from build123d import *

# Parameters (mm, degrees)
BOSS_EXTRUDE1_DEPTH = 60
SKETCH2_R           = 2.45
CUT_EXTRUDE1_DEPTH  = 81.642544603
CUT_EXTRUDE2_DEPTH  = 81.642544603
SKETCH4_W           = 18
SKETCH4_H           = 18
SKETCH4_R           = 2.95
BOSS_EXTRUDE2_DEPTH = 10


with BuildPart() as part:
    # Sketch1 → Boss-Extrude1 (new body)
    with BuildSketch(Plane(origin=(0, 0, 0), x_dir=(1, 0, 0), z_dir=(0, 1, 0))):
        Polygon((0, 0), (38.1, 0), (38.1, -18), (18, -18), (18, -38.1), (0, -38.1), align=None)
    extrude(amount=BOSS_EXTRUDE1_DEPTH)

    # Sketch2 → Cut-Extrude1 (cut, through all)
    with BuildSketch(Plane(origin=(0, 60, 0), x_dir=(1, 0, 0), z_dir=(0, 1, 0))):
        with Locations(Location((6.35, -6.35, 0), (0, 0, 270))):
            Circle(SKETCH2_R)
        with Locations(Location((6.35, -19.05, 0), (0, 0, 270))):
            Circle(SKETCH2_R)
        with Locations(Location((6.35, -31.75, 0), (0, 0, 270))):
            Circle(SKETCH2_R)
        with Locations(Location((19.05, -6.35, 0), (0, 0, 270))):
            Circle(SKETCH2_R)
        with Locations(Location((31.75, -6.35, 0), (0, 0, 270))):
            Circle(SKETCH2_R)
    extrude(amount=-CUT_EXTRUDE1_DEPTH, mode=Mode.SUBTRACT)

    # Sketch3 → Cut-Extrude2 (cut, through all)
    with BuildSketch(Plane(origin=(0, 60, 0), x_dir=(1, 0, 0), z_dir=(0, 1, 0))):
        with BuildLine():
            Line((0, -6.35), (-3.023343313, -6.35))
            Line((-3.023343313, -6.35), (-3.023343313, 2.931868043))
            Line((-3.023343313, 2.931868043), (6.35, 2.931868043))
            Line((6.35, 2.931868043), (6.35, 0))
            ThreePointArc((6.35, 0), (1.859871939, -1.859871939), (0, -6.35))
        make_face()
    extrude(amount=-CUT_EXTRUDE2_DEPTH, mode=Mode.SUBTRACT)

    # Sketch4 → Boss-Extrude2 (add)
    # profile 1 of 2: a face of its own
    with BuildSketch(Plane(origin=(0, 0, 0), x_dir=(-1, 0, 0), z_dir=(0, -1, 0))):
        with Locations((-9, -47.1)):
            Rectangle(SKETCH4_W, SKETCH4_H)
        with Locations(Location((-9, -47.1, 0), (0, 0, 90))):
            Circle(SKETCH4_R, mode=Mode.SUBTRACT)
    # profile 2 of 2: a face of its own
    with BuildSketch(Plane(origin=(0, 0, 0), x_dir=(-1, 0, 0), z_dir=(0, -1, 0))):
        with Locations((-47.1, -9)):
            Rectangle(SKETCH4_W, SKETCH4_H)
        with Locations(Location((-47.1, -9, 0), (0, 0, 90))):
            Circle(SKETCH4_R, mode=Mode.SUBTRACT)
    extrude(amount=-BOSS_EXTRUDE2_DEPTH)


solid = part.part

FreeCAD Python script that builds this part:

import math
import FreeCAD as App
import Part
import Sketcher
Q = App.Units.Quantity


def add_polygon(sketch, points):
    """Adds a closed chain of lines whose ends are joined by coincident constraints."""
    first, n = sketch.GeometryCount, len(points)
    for a, b in zip(points, points[1:] + points[:1]):
        sketch.addGeometry(Part.LineSegment(App.Vector(*a, 0), App.Vector(*b, 0)), False)
    for i in range(n):
        sketch.addConstraint(Sketcher.Constraint("Coincident", first + i, 2, first + (i + 1) % n, 1))

doc = App.newDocument("Part")
body = doc.addObject("PartDesign::Body", "Body")

# Sketch on XZ plane
sketch1 = body.newObject("Sketcher::SketchObject", "Sketch")
sketch1.AttachmentSupport = (doc.getObject("XZ_Plane"), [""])
sketch1.MapMode = "FlatFace"
add_polygon(sketch1, [(38.1, 0), (0, 0), (0, 38.1), (18, 38.1), (18, 18), (38.1, 18)])  # lines 0-5
sketch1.addConstraint([
    Sketcher.Constraint("Horizontal", 0),
    Sketcher.Constraint("Vertical", 1),
    Sketcher.Constraint("Horizontal", 2),
    Sketcher.Constraint("Vertical", 3),
    Sketcher.Constraint("Horizontal", 4),
    Sketcher.Constraint("Vertical", 5),
    Sketcher.Constraint("Coincident", 0, 2, -1, 1),
    Sketcher.Constraint("Equal", 0, 1),
    Sketcher.Constraint("Equal", 4, 3),
    Sketcher.Constraint("DistanceX", 2, 1, 2, 2, Q("18 mm")),
    Sketcher.Constraint("DistanceX", 0, 2, 0, 1, Q("38.1 mm")),
])
pad1 = body.newObject("PartDesign::Pad", "Pad")
pad1.Profile = sketch1
pad1.Length = 60
pad1.Reversed = True

# Sketch on XZ plane
sketch2 = body.newObject("Sketcher::SketchObject", "Sketch001")
sketch2.AttachmentSupport = (doc.getObject("XZ_Plane"), [""])
sketch2.MapMode = "FlatFace"
sketch2.AttachmentOffset = App.Placement(App.Vector(0, 0, -60), App.Rotation())
sketch2.addGeometry([
    Part.Circle(App.Vector(6.35, 6.35, 0), App.Vector(0, 0, 1), 2.45),  # 0
    Part.Circle(App.Vector(6.35, 19.05, 0), App.Vector(0, 0, 1), 2.45),  # 1
    Part.Circle(App.Vector(6.35, 31.75, 0), App.Vector(0, 0, 1), 2.45),  # 2
    Part.Circle(App.Vector(19.05, 6.35, 0), App.Vector(0, 0, 1), 2.45),  # 3
    Part.Circle(App.Vector(31.75, 6.35, 0), App.Vector(0, 0, 1), 2.45),  # 4
], False)
sketch2.addConstraint([
    Sketcher.Constraint("Equal", 0, 1),
    Sketcher.Constraint("Equal", 1, 2),
    Sketcher.Constraint("Equal", 2, 3),
    Sketcher.Constraint("Equal", 3, 4),
    Sketcher.Constraint("Horizontal", 0, 3, 3, 3),
    Sketcher.Constraint("Horizontal", 3, 3, 4, 3),
    Sketcher.Constraint("Vertical", 0, 3, 1, 3),
    Sketcher.Constraint("Vertical", 1, 3, 2, 3),
    Sketcher.Constraint("Diameter", 0, Q("4.9 mm")),
    Sketcher.Constraint("DistanceY", 0, 3, 1, 3, Q("12.7 mm")),
    Sketcher.Constraint("DistanceY", 1, 3, 2, 3, Q("12.7 mm")),
    Sketcher.Constraint("DistanceX", 0, 3, 3, 3, Q("12.7 mm")),
    Sketcher.Constraint("DistanceX", 3, 3, 4, 3, Q("12.7 mm")),
    Sketcher.Constraint("DistanceX", -1, 1, 0, 3, Q("6.35 mm")),
    Sketcher.Constraint("DistanceY", -1, 1, 0, 3, Q("6.35 mm")),
])
pocket1 = body.newObject("PartDesign::Pocket", "Pocket")
pocket1.Profile = sketch2
pocket1.Type = "ThroughAll"
pocket1.Reversed = True

# Sketch on XZ plane
sketch3 = body.newObject("Sketcher::SketchObject", "Sketch002")
sketch3.AttachmentSupport = (doc.getObject("XZ_Plane"), [""])
sketch3.MapMode = "FlatFace"
sketch3.AttachmentOffset = App.Placement(App.Vector(0, 0, -60), App.Rotation())
sketch3.addGeometry([
    Part.LineSegment(App.Vector(-3.023343, 6.35, 0), App.Vector(0, 6.35, 0)),  # 0
    Part.ArcOfCircle(Part.Circle(App.Vector(6.35, 6.35, 0), App.Vector(0, 0, 1), 6.35), math.radians(180), math.radians(270)),  # 1
    Part.LineSegment(App.Vector(6.35, 0, 0), App.Vector(6.35, -2.931868, 0)),  # 2
    Part.LineSegment(App.Vector(6.35, -2.931868, 0), App.Vector(-3.023343, -2.931868, 0)),  # 3
    Part.LineSegment(App.Vector(-3.023343, -2.931868, 0), App.Vector(-3.023343, 6.35, 0)),  # 4
], False)
sketch3.addConstraint([
    Sketcher.Constraint("Coincident", 0, 2, 1, 1),
    Sketcher.Constraint("Coincident", 1, 2, 2, 1),
    Sketcher.Constraint("Coincident", 2, 2, 3, 1),
    Sketcher.Constraint("Coincident", 3, 2, 4, 1),
    Sketcher.Constraint("Coincident", 4, 2, 0, 1),
    Sketcher.Constraint("Horizontal", 0),
    Sketcher.Constraint("Vertical", 2),
    Sketcher.Constraint("Horizontal", 3),
    Sketcher.Constraint("Vertical", 4),
    Sketcher.Constraint("PointOnObject", 0, 2, -2),
    Sketcher.Constraint("PointOnObject", 1, 2, -1),
    Sketcher.Constraint("Horizontal", 1, 3, 0, 2),
    Sketcher.Constraint("Radius", 1, Q("6.35 mm")),
    Sketcher.Constraint("DistanceX", -1, 1, 1, 2, Q("6.35 mm")),
    Sketcher.Constraint("DistanceY", 2, 2, 2, 1, Q("2.931868 mm")),
    Sketcher.Constraint("DistanceX", 0, 1, 0, 2, Q("3.023343 mm")),
])
pocket2 = body.newObject("PartDesign::Pocket", "Pocket001")
pocket2.Profile = sketch3
pocket2.Type = "ThroughAll"
pocket2.Reversed = True

# Sketch on XZ plane
sketch4 = body.newObject("Sketcher::SketchObject", "Sketch003")
sketch4.AttachmentSupport = (doc.getObject("XZ_Plane"), [""])
sketch4.MapMode = "FlatFace"
add_polygon(sketch4, [(18, 38.1), (18, 56.1), (0, 56.1), (0, 38.1)])  # lines 0-3
sketch4.addGeometry(Part.Circle(App.Vector(9, 47.1, 0), App.Vector(0, 0, 1), 2.95), False)  # 4
add_polygon(sketch4, [(56.1, 0), (56.1, 18), (38.1, 18), (38.1, 0)])  # lines 5-8
sketch4.addGeometry(Part.Circle(App.Vector(47.1, 9, 0), App.Vector(0, 0, 1), 2.95), False)  # 9
sketch4.addConstraint([
    Sketcher.Constraint("Vertical", 0),
    Sketcher.Constraint("Horizontal", 1),
    Sketcher.Constraint("Vertical", 2),
    Sketcher.Constraint("Horizontal", 3),
    Sketcher.Constraint("Vertical", 5),
    Sketcher.Constraint("Horizontal", 6),
    Sketcher.Constraint("Vertical", 7),
    Sketcher.Constraint("Horizontal", 8),
    Sketcher.Constraint("Equal", 4, 9),
    Sketcher.Constraint("PointOnObject", 1, 2, -2),
    Sketcher.Constraint("PointOnObject", 7, 2, -1),
    Sketcher.Constraint("Equal", 3, 6),
    Sketcher.Constraint("Equal", 8, 0),
    Sketcher.Constraint("Equal", 2, 5),
    Sketcher.Constraint("Diameter", 4, Q("5.9 mm")),
    Sketcher.Constraint("DistanceX", 1, 2, 1, 1, Q("18 mm")),
    Sketcher.Constraint("DistanceX", -1, 1, 4, 3, Q("9 mm")),
    Sketcher.Constraint("DistanceY", -1, 1, 9, 3, Q("9 mm")),
    Sketcher.Constraint("DistanceY", 4, 3, 0, 2, Q("9 mm")),
    Sketcher.Constraint("DistanceX", 9, 3, 5, 2, Q("9 mm")),
    Sketcher.Constraint("DistanceY", -1, 1, 4, 3, Q("47.1 mm")),
    Sketcher.Constraint("DistanceX", -1, 1, 9, 3, Q("47.1 mm")),
])
pad2 = body.newObject("PartDesign::Pad", "Pad001")
pad2.Profile = sketch4
pad2.Length = 10
pad2.Reversed = True

doc.recompute()
